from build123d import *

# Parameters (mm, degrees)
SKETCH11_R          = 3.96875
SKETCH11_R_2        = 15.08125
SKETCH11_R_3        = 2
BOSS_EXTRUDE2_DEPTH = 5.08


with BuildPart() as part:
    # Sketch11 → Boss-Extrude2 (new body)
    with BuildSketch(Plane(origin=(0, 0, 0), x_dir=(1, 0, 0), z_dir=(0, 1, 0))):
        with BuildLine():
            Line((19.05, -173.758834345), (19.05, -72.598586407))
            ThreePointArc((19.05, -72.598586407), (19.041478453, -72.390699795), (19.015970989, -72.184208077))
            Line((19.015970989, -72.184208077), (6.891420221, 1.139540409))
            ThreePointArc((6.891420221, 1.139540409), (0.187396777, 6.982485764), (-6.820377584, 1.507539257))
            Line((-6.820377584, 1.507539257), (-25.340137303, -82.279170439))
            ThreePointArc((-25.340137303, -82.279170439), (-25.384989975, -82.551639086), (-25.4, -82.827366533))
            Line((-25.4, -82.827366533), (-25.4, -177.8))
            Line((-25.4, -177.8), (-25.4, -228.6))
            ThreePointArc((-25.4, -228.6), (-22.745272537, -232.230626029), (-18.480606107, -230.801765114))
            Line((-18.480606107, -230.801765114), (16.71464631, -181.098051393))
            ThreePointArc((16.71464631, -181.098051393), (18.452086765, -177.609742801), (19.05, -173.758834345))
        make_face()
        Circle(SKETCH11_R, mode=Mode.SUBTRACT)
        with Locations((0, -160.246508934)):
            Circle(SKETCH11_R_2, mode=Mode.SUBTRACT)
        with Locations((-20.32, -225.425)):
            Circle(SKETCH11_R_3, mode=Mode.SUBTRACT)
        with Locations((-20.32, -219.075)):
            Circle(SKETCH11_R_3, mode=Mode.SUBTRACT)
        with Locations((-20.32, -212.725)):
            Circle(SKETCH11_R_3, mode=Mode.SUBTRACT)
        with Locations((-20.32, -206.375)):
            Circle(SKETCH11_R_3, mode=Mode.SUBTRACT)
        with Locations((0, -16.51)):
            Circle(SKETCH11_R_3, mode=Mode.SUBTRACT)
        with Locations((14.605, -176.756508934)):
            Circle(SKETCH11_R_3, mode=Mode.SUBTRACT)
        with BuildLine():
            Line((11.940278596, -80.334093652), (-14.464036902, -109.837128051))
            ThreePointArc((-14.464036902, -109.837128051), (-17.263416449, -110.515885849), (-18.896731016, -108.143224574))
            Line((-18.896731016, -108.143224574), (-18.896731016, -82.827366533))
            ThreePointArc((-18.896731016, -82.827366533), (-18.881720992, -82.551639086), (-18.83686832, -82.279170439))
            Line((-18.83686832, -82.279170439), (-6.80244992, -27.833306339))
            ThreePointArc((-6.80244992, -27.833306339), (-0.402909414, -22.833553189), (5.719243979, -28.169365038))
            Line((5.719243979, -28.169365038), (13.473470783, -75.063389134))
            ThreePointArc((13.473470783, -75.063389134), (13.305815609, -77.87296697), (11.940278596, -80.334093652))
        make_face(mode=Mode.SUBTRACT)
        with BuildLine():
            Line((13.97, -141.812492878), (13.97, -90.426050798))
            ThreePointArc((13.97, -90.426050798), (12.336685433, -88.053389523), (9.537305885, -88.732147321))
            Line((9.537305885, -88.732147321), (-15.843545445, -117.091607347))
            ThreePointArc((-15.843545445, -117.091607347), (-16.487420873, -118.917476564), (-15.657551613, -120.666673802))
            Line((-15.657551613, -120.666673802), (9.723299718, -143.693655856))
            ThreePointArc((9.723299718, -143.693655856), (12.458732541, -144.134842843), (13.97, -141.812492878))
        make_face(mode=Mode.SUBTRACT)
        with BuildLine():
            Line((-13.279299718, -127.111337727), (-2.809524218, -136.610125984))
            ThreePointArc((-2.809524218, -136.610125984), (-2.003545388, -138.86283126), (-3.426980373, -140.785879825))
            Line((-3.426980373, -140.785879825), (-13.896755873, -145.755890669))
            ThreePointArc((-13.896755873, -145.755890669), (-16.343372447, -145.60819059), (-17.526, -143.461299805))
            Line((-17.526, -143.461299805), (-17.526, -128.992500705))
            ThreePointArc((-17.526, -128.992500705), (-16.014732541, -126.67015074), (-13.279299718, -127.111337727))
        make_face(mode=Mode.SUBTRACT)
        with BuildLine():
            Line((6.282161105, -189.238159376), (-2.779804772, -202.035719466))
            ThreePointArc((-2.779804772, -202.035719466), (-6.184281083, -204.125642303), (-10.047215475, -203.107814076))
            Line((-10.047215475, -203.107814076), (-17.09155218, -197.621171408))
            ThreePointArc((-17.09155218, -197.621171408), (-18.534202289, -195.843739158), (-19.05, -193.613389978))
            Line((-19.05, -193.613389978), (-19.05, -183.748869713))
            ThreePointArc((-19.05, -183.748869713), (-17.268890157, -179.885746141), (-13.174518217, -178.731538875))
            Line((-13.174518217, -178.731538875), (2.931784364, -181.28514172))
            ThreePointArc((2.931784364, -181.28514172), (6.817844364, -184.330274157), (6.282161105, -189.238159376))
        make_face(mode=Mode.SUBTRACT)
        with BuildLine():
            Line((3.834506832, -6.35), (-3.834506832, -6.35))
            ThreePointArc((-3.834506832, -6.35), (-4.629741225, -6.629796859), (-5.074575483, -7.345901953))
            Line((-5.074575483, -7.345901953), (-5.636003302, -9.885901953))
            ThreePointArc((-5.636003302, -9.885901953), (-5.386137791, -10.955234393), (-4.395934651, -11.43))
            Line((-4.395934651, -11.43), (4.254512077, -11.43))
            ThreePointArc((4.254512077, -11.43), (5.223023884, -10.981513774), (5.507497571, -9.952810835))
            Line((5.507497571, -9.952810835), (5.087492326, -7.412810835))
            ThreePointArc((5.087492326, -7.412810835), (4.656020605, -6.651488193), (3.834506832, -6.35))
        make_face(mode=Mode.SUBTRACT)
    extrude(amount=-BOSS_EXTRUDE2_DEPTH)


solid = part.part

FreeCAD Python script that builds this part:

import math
import FreeCAD as App
import Part
import Sketcher

V = App.Vector
Q = App.Units.Quantity

doc = App.newDocument("Part")
body = doc.addObject("PartDesign::Body", "Body")

# Sketch on XZ plane
sketch1 = body.newObject("Sketcher::SketchObject", "Sketch")
sketch1.AttachmentSupport = (doc.getObject("XZ_Plane"), [""])
sketch1.MapMode = "FlatFace"
sketch1.addGeometry([
    Part.LineSegment(V(19.05, 173.76, 0), V(19.05, 72.6, 0)),  # 0
    Part.ArcOfCircle(Part.Circle(V(16.51, 72.6, 0), V(0, 0, 1), 2.54), math.radians(-9.39), math.radians(0)),  # 1
    Part.LineSegment(V(19.02, 72.18, 0), V(6.89, -1.14, 0)),  # 2
    Part.ArcOfCircle(Part.Circle(V(0, 0, 0), V(0, 0, 1), 6.99), math.radians(-168), math.radians(-9)),  # 3
    Part.LineSegment(V(-6.82, -1.51, 0), V(-25.34, 82.28, 0)),  # 4
    Part.ArcOfCircle(Part.Circle(V(-22.86, 82.83, 0), V(0, 0, 1), 2.54), math.radians(-180), math.radians(-167.54)),  # 5
    Part.LineSegment(V(-25.4, 82.83, 0), V(-25.4, 228.6, 0)),  # 6
    Part.ArcOfCircle(Part.Circle(V(-21.59, 228.6, 0), V(0, 0, 1), 3.81), math.radians(35), math.radians(180)),  # 7
    Part.LineSegment(V(-18.48, 230.8, 0), V(16.71, 181.1, 0)),  # 8
    Part.ArcOfCircle(Part.Circle(V(6.35, 173.76, 0), V(0, 0, 1), 12.7), math.radians(0), math.radians(35)),  # 9
    Part.Circle(V(-20.32, 225.43, 0), V(0, 0, 1), 2),  # 10
    Part.Circle(V(-20.32, 219.07, 0), V(0, 0, 1), 2),  # 11
    Part.Circle(V(-20.32, 212.72, 0), V(0, 0, 1), 2),  # 12
    Part.Circle(V(-20.32, 206.38, 0), V(0, 0, 1), 2),  # 13
    Part.ArcOfCircle(Part.Circle(V(2.14, 186.3, 0), V(0, 0, 1), 5.08), math.radians(-81), math.radians(35)),  # 14
    Part.LineSegment(V(6.28, 189.24, 0), V(-2.78, 202.04, 0)),  # 15
    Part.ArcOfCircle(Part.Circle(V(-6.93, 199.1, 0), V(0, 0, 1), 5.08), math.radians(35), math.radians(128)),  # 16
    Part.LineSegment(V(-10.05, 203.11, 0), V(-17.09, 197.62, 0)),  # 17
    Part.ArcOfCircle(Part.Circle(V(-13.97, 193.61, 0), V(0, 0, 1), 5.08), math.radians(128), math.radians(180)),  # 18
    Part.LineSegment(V(-19.05, 193.61, 0), V(-19.05, 183.75, 0)),  # 19
    Part.ArcOfCircle(Part.Circle(V(-13.97, 183.75, 0), V(0, 0, 1), 5.08), math.radians(180), math.radians(279)),  # 20
    Part.LineSegment(V(-13.17, 178.73, 0), V(2.93, 181.29, 0)),  # 21
    Part.ArcOfCircle(Part.Circle(V(-14.99, 128.99, 0), V(0, 0, 1), 2.54), math.radians(180), math.radians(312)),  # 22
    Part.LineSegment(V(-13.28, 127.11, 0), V(-2.81, 136.61, 0)),  # 23
    Part.ArcOfCircle(Part.Circle(V(-4.52, 138.49, 0), V(0, 0, 1), 2.54), math.radians(-48), math.radians(65)),  # 24
    Part.LineSegment(V(-3.43, 140.79, 0), V(-13.9, 145.76, 0)),  # 25
    Part.ArcOfCircle(Part.Circle(V(-14.99, 143.46, 0), V(0, 0, 1), 2.54), math.radians(65), math.radians(180)),  # 26
    Part.LineSegment(V(-17.53, 143.46, 0), V(-17.53, 128.99, 0)),  # 27
    Part.Circle(V(14.61, 176.76, 0), V(0, 0, 1), 2),  # 28
    Part.Circle(V(0, 160.25, 0), V(0, 0, 1), 15.08),  # 29
    Part.LineSegment(V(13.97, 90.43, 0), V(13.97, 141.81, 0)),  # 30
    Part.ArcOfCircle(Part.Circle(V(11.43, 141.81, 0), V(0, 0, 1), 2.54), math.radians(0), math.radians(132)),  # 31
    Part.LineSegment(V(9.72, 143.69, 0), V(-15.66, 120.67, 0)),  # 32
    Part.ArcOfCircle(Part.Circle(V(-13.95, 118.79, 0), V(0, 0, 1), 2.54), math.radians(132), math.radians(222)),  # 33
    Part.LineSegment(V(-15.84, 117.09, 0), V(9.54, 88.73, 0)),  # 34
    Part.ArcOfCircle(Part.Circle(V(11.43, 90.43, 0), V(0, 0, 1), 2.54), math.radians(-138), math.radians(0)),  # 35
    Part.ArcOfCircle(Part.Circle(V(7.21, 76.1, 0), V(0, 0, 1), 6.35), math.radians(-9), math.radians(42)),  # 36
    Part.LineSegment(V(11.94, 80.33, 0), V(-14.46, 109.84, 0)),  # 37
    Part.ArcOfCircle(Part.Circle(V(-16.36, 108.14, 0), V(0, 0, 1), 2.54), math.radians(42), math.radians(180)),  # 38
    Part.LineSegment(V(-18.9, 108.14, 0), V(-18.9, 82.83, 0)),  # 39
    Part.ArcOfCircle(Part.Circle(V(-16.36, 82.83, 0), V(0, 0, 1), 2.54), math.radians(180), math.radians(192.46)),  # 40
    Part.LineSegment(V(-18.84, 82.28, 0), V(-6.8, 27.83, 0)),  # 41
    Part.ArcOfCircle(Part.Circle(V(-0.57, 29.21, 0), V(0, 0, 1), 6.38), math.radians(-168), math.radians(-9)),  # 42
    Part.LineSegment(V(5.72, 28.17, 0), V(13.47, 75.06, 0)),  # 43
    Part.Circle(V(0, 16.51, 0), V(0, 0, 1), 2),  # 44
    Part.LineSegment(V(-3.83, 6.35, 0), V(3.83, 6.35, 0)),  # 45
    Part.ArcOfCircle(Part.Circle(V(3.83, 7.62, 0), V(0, 0, 1), 1.27), math.radians(-90), math.radians(-9)),  # 46
    Part.LineSegment(V(5.09, 7.41, 0), V(5.51, 9.95, 0)),  # 47
    Part.ArcOfCircle(Part.Circle(V(4.25, 10.16, 0), V(0, 0, 1), 1.27), math.radians(-9), math.radians(90)),  # 48
    Part.LineSegment(V(4.25, 11.43, 0), V(-4.4, 11.43, 0)),  # 49
    Part.ArcOfCircle(Part.Circle(V(-4.4, 10.16, 0), V(0, 0, 1), 1.27), math.radians(90), math.radians(192)),  # 50
    Part.LineSegment(V(-5.64, 9.89, 0), V(-5.07, 7.35, 0)),  # 51
    Part.ArcOfCircle(Part.Circle(V(-3.83, 7.62, 0), V(0, 0, 1), 1.27), math.radians(-168), math.radians(-90)),  # 52
    Part.Circle(V(0, 0, 0), V(0, 0, 1), 3.97),  # 53
], False)
sketch1.addConstraint([
    Sketcher.Constraint("Tangent", 0, 2, 1, 2),
    Sketcher.Constraint("Tangent", 1, 1, 2, 1),
    Sketcher.Constraint("Tangent", 2, 2, 3, 2),
    Sketcher.Constraint("Tangent", 3, 1, 4, 1),
    Sketcher.Constraint("Tangent", 4, 2, 5, 2),
    Sketcher.Constraint("Tangent", 5, 1, 6, 1),
    Sketcher.Constraint("Tangent", 6, 2, 7, 2),
    Sketcher.Constraint("Tangent", 7, 1, 8, 1),
    Sketcher.Constraint("Tangent", 8, 2, 9, 2),
    Sketcher.Constraint("Tangent", 9, 1, 0, 1),
    Sketcher.Constraint("Tangent", 14, 2, 15, 1),
    Sketcher.Constraint("Tangent", 15, 2, 16, 1),
    Sketcher.Constraint("Tangent", 16, 2, 17, 1),
    Sketcher.Constraint("Tangent", 17, 2, 18, 1),
    Sketcher.Constraint("Tangent", 18, 2, 19, 1),
    Sketcher.Constraint("Tangent", 19, 2, 20, 1),
    Sketcher.Constraint("Tangent", 20, 2, 21, 1),
    Sketcher.Constraint("Tangent", 21, 2, 14, 1),
    Sketcher.Constraint("Tangent", 22, 2, 23, 1),
    Sketcher.Constraint("Tangent", 23, 2, 24, 1),
    Sketcher.Constraint("Tangent", 24, 2, 25, 1),
    Sketcher.Constraint("Tangent", 25, 2, 26, 1),
    Sketcher.Constraint("Tangent", 26, 2, 27, 1),
    Sketcher.Constraint("Tangent", 27, 2, 22, 1),
    Sketcher.Constraint("Tangent", 30, 2, 31, 1),
    Sketcher.Constraint("Tangent", 31, 2, 32, 1),
    Sketcher.Constraint("Tangent", 32, 2, 33, 1),
    Sketcher.Constraint("Tangent", 33, 2, 34, 1),
    Sketcher.Constraint("Tangent", 34, 2, 35, 1),
    Sketcher.Constraint("Tangent", 35, 2, 30, 1),
    Sketcher.Constraint("Tangent", 36, 2, 37, 1),
    Sketcher.Constraint("Tangent", 37, 2, 38, 1),
    Sketcher.Constraint("Tangent", 38, 2, 39, 1),
    Sketcher.Constraint("Tangent", 39, 2, 40, 1),
    Sketcher.Constraint("Tangent", 40, 2, 41, 1),
    Sketcher.Constraint("Tangent", 41, 2, 42, 1),
    Sketcher.Constraint("Tangent", 42, 2, 43, 1),
    Sketcher.Constraint("Tangent", 43, 2, 36, 1),
    Sketcher.Constraint("Tangent", 45, 2, 46, 1),
    Sketcher.Constraint("Tangent", 46, 2, 47, 1),
    Sketcher.Constraint("Tangent", 47, 2, 48, 1),
    Sketcher.Constraint("Tangent", 48, 2, 49, 1),
    Sketcher.Constraint("Tangent", 49, 2, 50, 1),
    Sketcher.Constraint("Tangent", 50, 2, 51, 1),
    Sketcher.Constraint("Tangent", 51, 2, 52, 1),
    Sketcher.Constraint("Tangent", 52, 2, 45, 1),
    Sketcher.Constraint("Vertical", 0),
    Sketcher.Constraint("Vertical", 6),
    Sketcher.Constraint("Vertical", 19),
    Sketcher.Constraint("Vertical", 27),
    Sketcher.Constraint("Vertical", 30),
    Sketcher.Constraint("Vertical", 39),
    Sketcher.Constraint("Horizontal", 45),
    Sketcher.Constraint("Horizontal", 49),
    Sketcher.Constraint("Coincident", 3, 3, -1, 1),
    Sketcher.Constraint("Coincident", 53, 3, -1, 1),
    Sketcher.Constraint("Equal", 1, 5),
    Sketcher.Constraint("Equal", 10, 11),
    Sketcher.Constraint("Equal", 11, 12),
    Sketcher.Constraint("Equal", 12, 13),
    Sketcher.Constraint("Equal", 14, 16),
    Sketcher.Constraint("Equal", 16, 18),
    Sketcher.Constraint("Equal", 18, 20),
    Sketcher.Constraint("Equal", 5, 22),
    Sketcher.Constraint("Equal", 22, 24),
    Sketcher.Constraint("Equal", 24, 26),
    Sketcher.Constraint("Equal", 13, 28),
    Sketcher.Constraint("Equal", 26, 31),
    Sketcher.Constraint("Equal", 31, 33),
    Sketcher.Constraint("Equal", 33, 35),
    Sketcher.Constraint("Equal", 35, 38),
    Sketcher.Constraint("Equal", 38, 40),
    Sketcher.Constraint("Equal", 28, 44),
    Sketcher.Constraint("Equal", 46, 48),
    Sketcher.Constraint("Equal", 48, 50),
    Sketcher.Constraint("Equal", 50, 52),
    Sketcher.Constraint("PointOnObject", 29, 3, -2),
    Sketcher.Constraint("PointOnObject", 44, 3, -2),
    Sketcher.Constraint("Parallel", 8, 15),
    Sketcher.Constraint("Parallel", 23, 32),
    Sketcher.Constraint("Parallel", 34, 37),
    Sketcher.Constraint("Parallel", 4, 41),
    Sketcher.Constraint("Parallel", 2, 43),
    Sketcher.Constraint("Parallel", 43, 47),
    Sketcher.Constraint("Parallel", 41, 51),
    Sketcher.Constraint("Horizontal", 5, 3, 40, 3),
    Sketcher.Constraint("Vertical", 10, 3, 11, 3),
    Sketcher.Constraint("Vertical", 11, 3, 12, 3),
    Sketcher.Constraint("Vertical", 12, 3, 13, 3),
    Sketcher.Constraint("Radius", 1, Q("0.1 in")),
    Sketcher.Constraint("Radius", 9, Q("0.5 in")),
    Sketcher.Constraint("Radius", 14, Q("0.2 in")),
    Sketcher.Constraint("Radius", 7, Q("0.15 in")),
    Sketcher.Constraint("Radius", 36, Q("0.25 in")),
    Sketcher.Constraint("Radius", 46, Q("0.05 in")),
    Sketcher.Constraint("Diameter", 29, Q("1.1875 in")),
    Sketcher.Constraint("Diameter", 53, Q("0.3125 in")),
    Sketcher.Constraint("DistanceY", -1, 1, 7, 3, Q("9 in")),
    Sketcher.Constraint("DistanceX", 5, 1, -1, 1, Q("1 in")),
    Sketcher.Constraint("Radius", 3, Q("0.275 in")),
    Sketcher.Constraint("DistanceX", 10, 3, -1, 1, Q("0.8 in")),
    Sketcher.Constraint("DistanceY", -1, 1, 46, 3, Q("0.3 in")),
    Sketcher.Constraint("DistanceY", -1, 1, 48, 3, Q("0.4 in")),
    Sketcher.Constraint("Diameter", 10, Q("4 mm")),
    Sketcher.Constraint("DistanceX", -1, 1, 1, 3, Q("0.65 in")),
    Sketcher.Constraint("DistanceX", 18, 3, -1, 1, Q("0.55 in")),
    Sketcher.Constraint("DistanceX", 22, 3, -1, 1, Q("0.59 in")),
    Sketcher.Constraint("DistanceX", -1, 1, 31, 3, Q("0.45 in")),
    Sketcher.Constraint("DistanceY", -1, 1, 42, 3, Q("1.15 in")),
    Sketcher.Constraint("DistanceY", -1, 1, 44, 3, Q("0.65 in")),
    Sketcher.Constraint("DistanceY", -1, 1, 10, 3, Q("8.875 in")),
    Sketcher.Constraint("DistanceY", -1, 1, 11, 3, Q("8.625 in")),
    Sketcher.Constraint("DistanceY", -1, 1, 12, 3, Q("8.375 in")),
    Sketcher.Constraint("DistanceY", -1, 1, 13, 3, Q("8.125 in")),
    Sketcher.Constraint("DistanceX", -1, 1, 28, 3, Q("0.575 in")),
    Sketcher.Constraint("DistanceY", 27, 2, 27, 1, Q("14.468799 mm")),
    Sketcher.Constraint("DistanceX", 42, 3, -1, 1, Q("0.0226 in")),
    Sketcher.Constraint("Radius", 42, Q("6.378743 mm")),
    Sketcher.Constraint("DistanceY", 19, 2, 19, 1, Q("9.86452 mm")),
    Sketcher.Constraint("DistanceY", 39, 2, 39, 1, Q("25.315858 mm")),
    Sketcher.Constraint("DistanceY", -1, 1, 22, 3, Q("128.992501 mm")),
    Sketcher.Constraint("DistanceX", 22, 2, -1, 1, Q("13.2793 mm")),
    Sketcher.Constraint("Distance", 21, Q("16.307479 mm")),
    Sketcher.Constraint("Distance", 23, Q("14.13659 mm")),
    Sketcher.Constraint("Distance", 32, Q("34.269951 mm")),
    Sketcher.Constraint("DistanceX", 45, 1, 45, 2, Q("7.669014 mm")),
    Sketcher.Constraint("DistanceX", 49, 2, 49, 1, Q("8.650447 mm")),
    Sketcher.Constraint("DistanceY", 0, 2, 0, 1, Q("101.160248 mm")),
    Sketcher.Constraint("DistanceY", 6, 1, 6, 2, Q("145.772633 mm")),
    Sketcher.Constraint("DistanceY", 30, 1, 30, 2, Q("51.386442 mm")),
    Sketcher.Constraint("DistanceY", -1, 1, 18, 3, Q("193.61339 mm")),
    Sketcher.Constraint("DistanceY", -1, 1, 28, 3, Q("176.756509 mm")),
    Sketcher.Constraint("DistanceY", -1, 1, 29, 3, Q("160.246509 mm")),
    Sketcher.Constraint("DistanceY", -1, 1, 33, 3, Q("118.785511 mm")),
    Sketcher.Constraint("DistanceX", -1, 1, 14, 2, Q("6.282161 mm")),
    Sketcher.Constraint("DistanceY", -1, 1, 15, 2, Q("202.035719 mm")),
    Sketcher.Constraint("DistanceX", -1, 1, 46, 3, Q("3.834507 mm")),
])
pad1 = body.newObject("PartDesign::Pad", "Pad")
pad1.Profile = sketch1
pad1.Length = Q("0.2 in")

doc.recompute()
